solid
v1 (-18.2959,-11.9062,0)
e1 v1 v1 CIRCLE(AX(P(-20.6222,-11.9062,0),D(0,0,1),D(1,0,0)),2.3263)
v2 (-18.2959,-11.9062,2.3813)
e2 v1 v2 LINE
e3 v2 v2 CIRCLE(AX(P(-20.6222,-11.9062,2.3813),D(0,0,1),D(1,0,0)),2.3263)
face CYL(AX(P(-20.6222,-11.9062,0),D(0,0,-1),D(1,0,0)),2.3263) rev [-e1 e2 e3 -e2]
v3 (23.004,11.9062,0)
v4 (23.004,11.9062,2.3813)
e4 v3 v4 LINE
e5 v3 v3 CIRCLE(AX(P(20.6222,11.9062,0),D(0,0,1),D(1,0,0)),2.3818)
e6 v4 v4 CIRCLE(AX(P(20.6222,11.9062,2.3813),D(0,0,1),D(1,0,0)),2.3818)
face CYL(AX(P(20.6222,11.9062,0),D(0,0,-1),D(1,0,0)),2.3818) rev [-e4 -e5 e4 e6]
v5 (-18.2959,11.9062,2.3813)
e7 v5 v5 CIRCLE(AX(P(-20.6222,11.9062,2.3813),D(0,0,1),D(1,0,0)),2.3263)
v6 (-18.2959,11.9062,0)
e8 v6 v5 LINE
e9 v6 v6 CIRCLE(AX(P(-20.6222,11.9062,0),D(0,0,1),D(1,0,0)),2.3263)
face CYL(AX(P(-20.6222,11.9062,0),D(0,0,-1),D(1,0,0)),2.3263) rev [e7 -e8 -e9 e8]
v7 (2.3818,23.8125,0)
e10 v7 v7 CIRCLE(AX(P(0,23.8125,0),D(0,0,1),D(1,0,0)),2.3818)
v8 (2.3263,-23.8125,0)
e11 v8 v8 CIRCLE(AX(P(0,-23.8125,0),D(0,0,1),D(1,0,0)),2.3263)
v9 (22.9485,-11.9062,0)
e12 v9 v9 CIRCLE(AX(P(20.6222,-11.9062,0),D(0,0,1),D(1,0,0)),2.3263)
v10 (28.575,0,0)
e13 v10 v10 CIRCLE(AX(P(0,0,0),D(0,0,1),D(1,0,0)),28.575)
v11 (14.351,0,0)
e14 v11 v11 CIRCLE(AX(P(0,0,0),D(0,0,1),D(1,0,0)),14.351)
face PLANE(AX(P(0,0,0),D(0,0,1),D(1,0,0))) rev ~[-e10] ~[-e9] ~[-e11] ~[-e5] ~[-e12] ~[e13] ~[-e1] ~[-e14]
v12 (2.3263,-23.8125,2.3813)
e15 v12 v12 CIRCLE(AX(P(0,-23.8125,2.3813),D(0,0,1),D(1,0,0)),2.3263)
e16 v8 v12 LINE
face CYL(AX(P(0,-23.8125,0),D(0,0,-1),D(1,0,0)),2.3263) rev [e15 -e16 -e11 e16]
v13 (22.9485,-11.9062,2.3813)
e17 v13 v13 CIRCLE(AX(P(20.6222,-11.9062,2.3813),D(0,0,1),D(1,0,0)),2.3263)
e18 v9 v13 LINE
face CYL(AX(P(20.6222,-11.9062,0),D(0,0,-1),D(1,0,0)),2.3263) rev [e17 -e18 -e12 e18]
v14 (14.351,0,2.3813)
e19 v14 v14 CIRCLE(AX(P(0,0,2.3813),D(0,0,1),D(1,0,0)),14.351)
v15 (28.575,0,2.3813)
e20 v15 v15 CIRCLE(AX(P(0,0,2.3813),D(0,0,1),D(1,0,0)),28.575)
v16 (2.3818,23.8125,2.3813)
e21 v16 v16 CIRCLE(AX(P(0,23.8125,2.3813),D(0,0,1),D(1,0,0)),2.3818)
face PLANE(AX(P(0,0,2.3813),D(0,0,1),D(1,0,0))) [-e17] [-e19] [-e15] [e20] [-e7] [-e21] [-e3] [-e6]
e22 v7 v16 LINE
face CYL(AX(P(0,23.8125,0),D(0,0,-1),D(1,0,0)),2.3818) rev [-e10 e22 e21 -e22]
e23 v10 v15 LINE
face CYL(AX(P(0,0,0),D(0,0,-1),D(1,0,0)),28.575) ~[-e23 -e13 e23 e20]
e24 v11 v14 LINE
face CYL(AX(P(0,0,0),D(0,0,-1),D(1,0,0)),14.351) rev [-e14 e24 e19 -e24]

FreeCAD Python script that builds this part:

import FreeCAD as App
import Part
import Sketcher

V = App.Vector
Q = App.Units.Quantity

doc = App.newDocument("Part")
body = doc.addObject("PartDesign::Body", "Body")

sketch1 = body.newObject("Sketcher::SketchObject", "Sketch")
sketch1.AttachmentSupport = (doc.getObject("XY_Plane"), [""])
sketch1.MapMode = "FlatFace"
sketch1.addGeometry([
    Part.Circle(V(0, 0, 0), V(0, 0, 1), 28.6),
    Part.Circle(V(-20.6, -11.9, 0), V(0, 0, 1), 2.3),
    Part.Circle(V(0, -23.8, 0), V(0, 0, 1), 2.3),
    Part.Circle(V(20.6, -11.9, 0), V(0, 0, 1), 2.3),
    Part.Circle(V(-20.6, 11.9, 0), V(0, 0, 1), 2.3),
    Part.Circle(V(0, 0, 0), V(0, 0, 1), 14.4),
    Part.Circle(V(20.6, 11.9, 0), V(0, 0, 1), 2.4),
    Part.Circle(V(0, 23.8, 0), V(0, 0, 1), 2.4),
], False)
sketch1.addConstraint([
    Sketcher.Constraint("Coincident", 0, 3, -1, 1),
    Sketcher.Constraint("Coincident", 5, 3, -1, 1),
    Sketcher.Constraint("Equal", 1, 2),
    Sketcher.Constraint("Equal", 2, 3),
    Sketcher.Constraint("Equal", 3, 4),
    Sketcher.Constraint("Equal", 6, 7),
    Sketcher.Constraint("Symmetric", 3, 3, 4, 3, -1, 1),
    Sketcher.Constraint("Symmetric", 1, 3, 6, 3, -1, 1),
    Sketcher.Constraint("Symmetric", 2, 3, 7, 3, -1, 1),
    Sketcher.Constraint("Symmetric", 1, 3, 3, 3, -2),
    Sketcher.Constraint("PointOnObject", 2, 3, -2),
    Sketcher.Constraint("Diameter", 0, Q("2.25 in")),
    Sketcher.Constraint("Diameter", 5, Q("1.13 in")),
    Sketcher.Constraint("Diameter", 1, Q("4.6526 mm")),
    Sketcher.Constraint("Diameter", 6, Q("4.7636 mm")),
    Sketcher.Constraint("DistanceY", 1, 3, -1, 1, Q("0.468748 in")),
    Sketcher.Constraint("DistanceY", 2, 3, -1, 1, Q("0.9375 in")),
    Sketcher.Constraint("DistanceX", 1, 3, -1, 1, Q("0.8119 in")),
])
pad1 = body.newObject("PartDesign::Pad", "Pad")
pad1.Profile = sketch1
pad1.Length = Q("0.093752 in")

doc.recompute()
